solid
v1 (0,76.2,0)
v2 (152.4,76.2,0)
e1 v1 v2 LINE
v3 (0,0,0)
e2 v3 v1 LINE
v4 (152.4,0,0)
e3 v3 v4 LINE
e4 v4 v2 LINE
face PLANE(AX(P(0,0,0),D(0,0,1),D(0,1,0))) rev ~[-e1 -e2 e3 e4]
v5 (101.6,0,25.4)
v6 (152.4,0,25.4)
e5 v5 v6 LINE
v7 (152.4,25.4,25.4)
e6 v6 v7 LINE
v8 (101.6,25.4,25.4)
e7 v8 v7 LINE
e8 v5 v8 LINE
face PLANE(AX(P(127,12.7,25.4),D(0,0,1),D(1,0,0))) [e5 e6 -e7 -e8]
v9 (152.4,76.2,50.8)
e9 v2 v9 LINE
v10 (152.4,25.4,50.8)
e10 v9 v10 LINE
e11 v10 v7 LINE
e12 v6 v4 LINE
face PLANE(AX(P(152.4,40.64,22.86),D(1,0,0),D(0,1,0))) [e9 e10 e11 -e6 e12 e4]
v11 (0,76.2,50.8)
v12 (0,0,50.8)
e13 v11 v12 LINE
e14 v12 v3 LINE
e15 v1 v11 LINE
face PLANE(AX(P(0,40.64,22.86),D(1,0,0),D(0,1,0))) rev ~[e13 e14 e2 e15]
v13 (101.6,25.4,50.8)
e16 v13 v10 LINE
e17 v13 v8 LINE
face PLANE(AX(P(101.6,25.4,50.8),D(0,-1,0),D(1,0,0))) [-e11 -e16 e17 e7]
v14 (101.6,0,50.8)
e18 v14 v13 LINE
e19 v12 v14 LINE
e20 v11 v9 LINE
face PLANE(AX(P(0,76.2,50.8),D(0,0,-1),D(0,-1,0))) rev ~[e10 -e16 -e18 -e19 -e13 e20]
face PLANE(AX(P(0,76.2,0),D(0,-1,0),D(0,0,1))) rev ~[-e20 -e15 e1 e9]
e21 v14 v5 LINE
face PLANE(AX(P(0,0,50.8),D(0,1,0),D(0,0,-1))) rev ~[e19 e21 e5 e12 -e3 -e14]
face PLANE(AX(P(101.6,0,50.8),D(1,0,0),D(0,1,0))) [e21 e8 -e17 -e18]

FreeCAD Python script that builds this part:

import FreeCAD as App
import Part
import Sketcher
Q = App.Units.Quantity


def add_polygon(sketch, points):
    """Adds a closed chain of lines whose ends are joined by coincident constraints."""
    first, n = sketch.GeometryCount, len(points)
    for a, b in zip(points, points[1:] + points[:1]):
        sketch.addGeometry(Part.LineSegment(App.Vector(*a, 0), App.Vector(*b, 0)), False)
    for i in range(n):
        sketch.addConstraint(Sketcher.Constraint("Coincident", first + i, 2, first + (i + 1) % n, 1))

doc = App.newDocument("Part")
params = doc.addObject("Spreadsheet::Sheet", "Params")
for row, (alias, value) in enumerate([
    ("sketch1_width", "3 in"),
    ("sketch1_height", "2 in"),
    ("pad1_length", "6 in"),
    ("sketch2_width", "2 in"),
    ("sketch2_height", "1 in"),
    ("pocket1_length", "1 in"),
], start=1):
    params.set(f"A{row}", alias)
    params.set(f"B{row}", "=" + value)
    params.setAlias(f"B{row}", alias)

body = doc.addObject("PartDesign::Body", "Body")

sketch1 = body.newObject("Sketcher::SketchObject", "Sketch")
sketch1.AttachmentSupport = (doc.getObject("YZ_Plane"), [""])
sketch1.MapMode = "FlatFace"
add_polygon(sketch1, [(0, 0), (76, 0), (76, 51), (0, 51)])
sketch1.addConstraint(Sketcher.Constraint("Horizontal", 0))
sketch1.addConstraint(Sketcher.Constraint("Vertical", 1))
sketch1.addConstraint(Sketcher.Constraint("Horizontal", 2))
sketch1.addConstraint(Sketcher.Constraint("Vertical", 3))
sketch1.addConstraint(Sketcher.Constraint("Coincident", 3, 2, -1, 1))
sketch1.addConstraint(Sketcher.Constraint("DistanceX", 0, 1, 0, 2, Q("3 in")))
sketch1.addConstraint(Sketcher.Constraint("DistanceY", 1, 1, 1, 2, Q("2 in")))
sketch1.setExpression("Constraints[9]", "Params.sketch1_width")
sketch1.setExpression("Constraints[10]", "Params.sketch1_height")
pad1 = body.newObject("PartDesign::Pad", "Pad")
pad1.Profile = sketch1
pad1.setExpression("Length", "Params.pad1_length")

sketch2 = body.newObject("Sketcher::SketchObject", "Sketch001")
sketch2.AttachmentSupport = (doc.getObject("XY_Plane"), [""])
sketch2.MapMode = "FlatFace"
sketch2.AttachmentOffset = App.Placement(App.Vector(0, 0, 2 * 25.4), App.Rotation())
add_polygon(sketch2, [(102, 25), (102, 0), (152, 0), (152, 25)])
sketch2.addConstraint(Sketcher.Constraint("Vertical", 0))
sketch2.addConstraint(Sketcher.Constraint("Horizontal", 1))
sketch2.addConstraint(Sketcher.Constraint("Vertical", 2))
sketch2.addConstraint(Sketcher.Constraint("Horizontal", 3))
sketch2.addConstraint(Sketcher.Constraint("PointOnObject", 0, 2, -1))
sketch2.addConstraint(Sketcher.Constraint("DistanceX", 1, 1, 1, 2, Q("2 in")))
sketch2.addConstraint(Sketcher.Constraint("DistanceY", 0, 2, 0, 1, Q("1 in")))
sketch2.addConstraint(Sketcher.Constraint("DistanceX", -1, 1, 0, 2, Q("4 in")))
sketch2.setExpression("Constraints[9]", "Params.sketch2_width")
sketch2.setExpression("Constraints[10]", "Params.sketch2_height")
pocket1 = body.newObject("PartDesign::Pocket", "Pocket")
pocket1.Profile = sketch2
pocket1.setExpression("Length", "Params.pocket1_length")

doc.recompute()
